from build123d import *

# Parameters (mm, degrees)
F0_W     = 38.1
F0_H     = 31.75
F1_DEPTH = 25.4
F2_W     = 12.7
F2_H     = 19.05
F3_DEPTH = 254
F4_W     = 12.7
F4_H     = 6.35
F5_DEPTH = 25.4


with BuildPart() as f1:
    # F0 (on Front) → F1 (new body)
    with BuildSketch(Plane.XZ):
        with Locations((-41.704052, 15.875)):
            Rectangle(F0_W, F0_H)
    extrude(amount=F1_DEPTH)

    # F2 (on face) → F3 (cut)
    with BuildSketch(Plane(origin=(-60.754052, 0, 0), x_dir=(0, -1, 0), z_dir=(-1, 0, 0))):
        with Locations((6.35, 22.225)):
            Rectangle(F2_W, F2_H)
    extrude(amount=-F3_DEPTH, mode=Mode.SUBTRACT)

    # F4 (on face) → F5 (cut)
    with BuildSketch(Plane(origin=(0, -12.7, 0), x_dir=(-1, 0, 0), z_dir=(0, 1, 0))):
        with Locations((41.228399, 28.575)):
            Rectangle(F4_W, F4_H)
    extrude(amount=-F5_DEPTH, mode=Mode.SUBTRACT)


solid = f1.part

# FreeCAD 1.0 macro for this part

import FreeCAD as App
import Part
import Sketcher
from FreeCAD import Vector
Q = App.Units.Quantity


def add_polygon(sketch, points):
    """Adds a closed chain of lines whose ends are joined by coincident constraints."""
    first, n = sketch.GeometryCount, len(points)
    for a, b in zip(points, points[1:] + points[:1]):
        sketch.addGeometry(Part.LineSegment(App.Vector(*a, 0), App.Vector(*b, 0)), False)
    for i in range(n):
        sketch.addConstraint(Sketcher.Constraint("Coincident", first + i, 2, first + (i + 1) % n, 1))

doc = App.newDocument("Part")
body = doc.addObject("PartDesign::Body", "Body")

# Sketch on XZ plane
sketch1 = body.newObject("Sketcher::SketchObject", "Sketch")
sketch1.AttachmentSupport = (doc.getObject("XZ_Plane"), [""])
sketch1.MapMode = "FlatFace"
add_polygon(sketch1, [(-61, 32), (-61, 0), (-23, 0), (-23, 32)])  # lines 0-3
sketch1.addConstraint(Sketcher.Constraint("Vertical", 0))
sketch1.addConstraint(Sketcher.Constraint("Horizontal", 1))
sketch1.addConstraint(Sketcher.Constraint("Vertical", 2))
sketch1.addConstraint(Sketcher.Constraint("Horizontal", 3))
sketch1.addConstraint(Sketcher.Constraint("PointOnObject", 0, 2, -1))
sketch1.addConstraint(Sketcher.Constraint("DistanceX", 1, 1, 1, 2, Q("1.5 in")))
sketch1.addConstraint(Sketcher.Constraint("DistanceY", 0, 2, 0, 1, Q("1.25 in")))
sketch1.addConstraint(Sketcher.Constraint("DistanceX", 1, 2, -1, 1, Q("22.654052 mm")))
pad1 = body.newObject("PartDesign::Pad", "Pad")
pad1.Profile = sketch1
pad1.Length = Q("1 in")

# Sketch on YZ plane
sketch2 = body.newObject("Sketcher::SketchObject", "Sketch001")
sketch2.AttachmentSupport = (doc.getObject("YZ_Plane"), [""])
sketch2.MapMode = "FlatFace"
sketch2.AttachmentOffset = App.Placement(Vector(0, 0, -60.754052), App.Rotation())
add_polygon(sketch2, [(0, 32), (0, 13), (-13, 13), (-13, 32)])  # lines 0-3
sketch2.addConstraint(Sketcher.Constraint("Vertical", 0))
sketch2.addConstraint(Sketcher.Constraint("Horizontal", 1))
sketch2.addConstraint(Sketcher.Constraint("Vertical", 2))
sketch2.addConstraint(Sketcher.Constraint("Horizontal", 3))
sketch2.addConstraint(Sketcher.Constraint("PointOnObject", 0, 2, -2))
sketch2.addConstraint(Sketcher.Constraint("DistanceX", 1, 2, 1, 1, Q("0.5 in")))
sketch2.addConstraint(Sketcher.Constraint("DistanceY", 0, 2, 0, 1, Q("0.75 in")))
sketch2.addConstraint(Sketcher.Constraint("DistanceY", -1, 1, 0, 2, Q("0.5 in")))
pocket1 = body.newObject("PartDesign::Pocket", "Pocket")
pocket1.Profile = sketch2
pocket1.Length = Q("10 in")
pocket1.Reversed = True

# Sketch on XZ plane
sketch3 = body.newObject("Sketcher::SketchObject", "Sketch002")
sketch3.AttachmentSupport = (doc.getObject("XZ_Plane"), [""])
sketch3.MapMode = "FlatFace"
sketch3.AttachmentOffset = App.Placement(Vector(0, 0, 0.5 * 25.4), App.Rotation())
add_polygon(sketch3, [(-35, 32), (-35, 25), (-48, 25), (-48, 32)])  # lines 0-3
sketch3.addConstraint(Sketcher.Constraint("Vertical", 0))
sketch3.addConstraint(Sketcher.Constraint("Horizontal", 1))
sketch3.addConstraint(Sketcher.Constraint("Vertical", 2))
sketch3.addConstraint(Sketcher.Constraint("Horizontal", 3))
sketch3.addConstraint(Sketcher.Constraint("DistanceX", 1, 2, 1, 1, Q("0.5 in")))
sketch3.addConstraint(Sketcher.Constraint("DistanceY", -1, 1, 0, 2, Q("1 in")))
sketch3.addConstraint(Sketcher.Constraint("DistanceY", 0, 2, 0, 1, Q("0.25 in")))
sketch3.addConstraint(Sketcher.Constraint("DistanceX", 0, 2, -1, 1, Q("34.878399 mm")))
pocket2 = body.newObject("PartDesign::Pocket", "Pocket001")
pocket2.Profile = sketch3
pocket2.Length = Q("1 in")
pocket2.Reversed = True

doc.recompute()
